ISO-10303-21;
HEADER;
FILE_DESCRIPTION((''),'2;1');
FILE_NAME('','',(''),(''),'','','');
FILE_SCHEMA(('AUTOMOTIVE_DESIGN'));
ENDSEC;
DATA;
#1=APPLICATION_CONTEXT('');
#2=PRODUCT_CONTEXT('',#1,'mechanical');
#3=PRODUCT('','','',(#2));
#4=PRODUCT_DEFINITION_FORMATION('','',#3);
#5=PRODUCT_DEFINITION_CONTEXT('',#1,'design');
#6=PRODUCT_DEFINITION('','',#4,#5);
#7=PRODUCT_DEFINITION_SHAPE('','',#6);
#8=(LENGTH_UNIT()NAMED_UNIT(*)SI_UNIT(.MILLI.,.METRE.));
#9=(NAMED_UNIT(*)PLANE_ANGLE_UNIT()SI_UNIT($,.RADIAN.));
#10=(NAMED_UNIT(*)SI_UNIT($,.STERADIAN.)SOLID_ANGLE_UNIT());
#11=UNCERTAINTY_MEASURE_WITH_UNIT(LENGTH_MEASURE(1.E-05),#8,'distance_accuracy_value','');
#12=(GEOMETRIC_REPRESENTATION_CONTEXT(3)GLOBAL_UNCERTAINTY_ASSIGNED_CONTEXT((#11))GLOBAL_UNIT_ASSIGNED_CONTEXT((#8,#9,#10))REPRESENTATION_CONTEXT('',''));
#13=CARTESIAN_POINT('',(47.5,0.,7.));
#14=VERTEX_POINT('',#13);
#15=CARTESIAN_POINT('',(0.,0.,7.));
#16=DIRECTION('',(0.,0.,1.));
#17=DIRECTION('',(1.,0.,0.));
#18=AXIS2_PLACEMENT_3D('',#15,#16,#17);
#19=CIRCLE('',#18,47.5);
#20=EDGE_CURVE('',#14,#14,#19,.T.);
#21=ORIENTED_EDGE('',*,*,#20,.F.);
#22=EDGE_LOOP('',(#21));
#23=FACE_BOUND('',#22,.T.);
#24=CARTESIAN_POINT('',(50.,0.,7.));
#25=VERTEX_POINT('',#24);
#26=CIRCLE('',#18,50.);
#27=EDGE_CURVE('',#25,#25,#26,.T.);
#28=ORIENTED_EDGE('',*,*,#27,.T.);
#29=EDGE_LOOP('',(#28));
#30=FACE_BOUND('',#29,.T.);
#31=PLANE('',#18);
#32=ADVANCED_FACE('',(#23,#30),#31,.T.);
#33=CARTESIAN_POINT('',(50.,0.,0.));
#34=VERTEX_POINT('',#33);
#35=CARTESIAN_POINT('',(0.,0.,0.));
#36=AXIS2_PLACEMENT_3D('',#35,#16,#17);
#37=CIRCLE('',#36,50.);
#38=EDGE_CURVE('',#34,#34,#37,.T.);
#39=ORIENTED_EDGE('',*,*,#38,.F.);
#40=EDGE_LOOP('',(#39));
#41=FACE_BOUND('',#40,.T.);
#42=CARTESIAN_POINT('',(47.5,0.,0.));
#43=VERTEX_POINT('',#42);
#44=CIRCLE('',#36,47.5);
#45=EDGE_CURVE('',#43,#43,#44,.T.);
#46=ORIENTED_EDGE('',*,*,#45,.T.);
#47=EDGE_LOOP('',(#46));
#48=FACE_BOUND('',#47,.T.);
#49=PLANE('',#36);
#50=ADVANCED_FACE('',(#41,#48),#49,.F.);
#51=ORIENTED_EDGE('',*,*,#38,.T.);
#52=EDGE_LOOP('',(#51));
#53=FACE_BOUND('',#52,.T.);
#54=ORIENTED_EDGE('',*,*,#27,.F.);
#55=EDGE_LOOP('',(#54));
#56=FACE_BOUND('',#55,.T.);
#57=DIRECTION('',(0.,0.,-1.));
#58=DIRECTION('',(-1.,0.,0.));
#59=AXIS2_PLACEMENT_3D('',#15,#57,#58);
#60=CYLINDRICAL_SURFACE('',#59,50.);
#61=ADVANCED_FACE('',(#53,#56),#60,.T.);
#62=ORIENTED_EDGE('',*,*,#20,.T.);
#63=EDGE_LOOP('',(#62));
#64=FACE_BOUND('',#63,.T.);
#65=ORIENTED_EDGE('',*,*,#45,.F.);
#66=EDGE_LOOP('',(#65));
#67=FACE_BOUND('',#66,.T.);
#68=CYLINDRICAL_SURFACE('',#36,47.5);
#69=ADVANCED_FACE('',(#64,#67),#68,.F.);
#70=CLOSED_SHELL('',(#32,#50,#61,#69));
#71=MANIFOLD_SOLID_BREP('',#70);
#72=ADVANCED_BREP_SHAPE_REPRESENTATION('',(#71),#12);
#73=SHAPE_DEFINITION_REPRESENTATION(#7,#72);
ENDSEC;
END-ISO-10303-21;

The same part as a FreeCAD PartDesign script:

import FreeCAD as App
import Part
import Sketcher
Q = App.Units.Quantity

doc = App.newDocument("Part")
body = doc.addObject("PartDesign::Body", "Body")

# Sketch on XY plane
sketch1 = body.newObject("Sketcher::SketchObject", "Sketch")
sketch1.AttachmentSupport = (doc.getObject("XY_Plane"), [""])
sketch1.MapMode = "FlatFace"
sketch1.addGeometry(Part.Circle(App.Vector(0, 0, 0), App.Vector(0, 0, 1), 50), False)
sketch1.addConstraint([
    Sketcher.Constraint("Coincident", 0, 3, -1, 1),
    Sketcher.Constraint("Diameter", 0, Q("100 mm")),
])
pad1 = body.newObject("PartDesign::Pad", "Pad")
pad1.Profile = sketch1
pad1.Length = 7

# Sketch on XY plane
sketch2 = body.newObject("Sketcher::SketchObject", "Sketch001")
sketch2.AttachmentSupport = (doc.getObject("XY_Plane"), [""])
sketch2.MapMode = "FlatFace"
sketch2.AttachmentOffset = App.Placement(App.Vector(0, 0, 7), App.Rotation())
sketch2.addGeometry(Part.Circle(App.Vector(0, 0, 0), App.Vector(0, 0, 1), 48), False)
sketch2.addConstraint([
    Sketcher.Constraint("Coincident", 0, 3, -1, 1),
    Sketcher.Constraint("Diameter", 0, Q("95 mm")),
])
pocket1 = body.newObject("PartDesign::Pocket", "Pocket")
pocket1.Profile = sketch2
pocket1.Length = 7

doc.recompute()
